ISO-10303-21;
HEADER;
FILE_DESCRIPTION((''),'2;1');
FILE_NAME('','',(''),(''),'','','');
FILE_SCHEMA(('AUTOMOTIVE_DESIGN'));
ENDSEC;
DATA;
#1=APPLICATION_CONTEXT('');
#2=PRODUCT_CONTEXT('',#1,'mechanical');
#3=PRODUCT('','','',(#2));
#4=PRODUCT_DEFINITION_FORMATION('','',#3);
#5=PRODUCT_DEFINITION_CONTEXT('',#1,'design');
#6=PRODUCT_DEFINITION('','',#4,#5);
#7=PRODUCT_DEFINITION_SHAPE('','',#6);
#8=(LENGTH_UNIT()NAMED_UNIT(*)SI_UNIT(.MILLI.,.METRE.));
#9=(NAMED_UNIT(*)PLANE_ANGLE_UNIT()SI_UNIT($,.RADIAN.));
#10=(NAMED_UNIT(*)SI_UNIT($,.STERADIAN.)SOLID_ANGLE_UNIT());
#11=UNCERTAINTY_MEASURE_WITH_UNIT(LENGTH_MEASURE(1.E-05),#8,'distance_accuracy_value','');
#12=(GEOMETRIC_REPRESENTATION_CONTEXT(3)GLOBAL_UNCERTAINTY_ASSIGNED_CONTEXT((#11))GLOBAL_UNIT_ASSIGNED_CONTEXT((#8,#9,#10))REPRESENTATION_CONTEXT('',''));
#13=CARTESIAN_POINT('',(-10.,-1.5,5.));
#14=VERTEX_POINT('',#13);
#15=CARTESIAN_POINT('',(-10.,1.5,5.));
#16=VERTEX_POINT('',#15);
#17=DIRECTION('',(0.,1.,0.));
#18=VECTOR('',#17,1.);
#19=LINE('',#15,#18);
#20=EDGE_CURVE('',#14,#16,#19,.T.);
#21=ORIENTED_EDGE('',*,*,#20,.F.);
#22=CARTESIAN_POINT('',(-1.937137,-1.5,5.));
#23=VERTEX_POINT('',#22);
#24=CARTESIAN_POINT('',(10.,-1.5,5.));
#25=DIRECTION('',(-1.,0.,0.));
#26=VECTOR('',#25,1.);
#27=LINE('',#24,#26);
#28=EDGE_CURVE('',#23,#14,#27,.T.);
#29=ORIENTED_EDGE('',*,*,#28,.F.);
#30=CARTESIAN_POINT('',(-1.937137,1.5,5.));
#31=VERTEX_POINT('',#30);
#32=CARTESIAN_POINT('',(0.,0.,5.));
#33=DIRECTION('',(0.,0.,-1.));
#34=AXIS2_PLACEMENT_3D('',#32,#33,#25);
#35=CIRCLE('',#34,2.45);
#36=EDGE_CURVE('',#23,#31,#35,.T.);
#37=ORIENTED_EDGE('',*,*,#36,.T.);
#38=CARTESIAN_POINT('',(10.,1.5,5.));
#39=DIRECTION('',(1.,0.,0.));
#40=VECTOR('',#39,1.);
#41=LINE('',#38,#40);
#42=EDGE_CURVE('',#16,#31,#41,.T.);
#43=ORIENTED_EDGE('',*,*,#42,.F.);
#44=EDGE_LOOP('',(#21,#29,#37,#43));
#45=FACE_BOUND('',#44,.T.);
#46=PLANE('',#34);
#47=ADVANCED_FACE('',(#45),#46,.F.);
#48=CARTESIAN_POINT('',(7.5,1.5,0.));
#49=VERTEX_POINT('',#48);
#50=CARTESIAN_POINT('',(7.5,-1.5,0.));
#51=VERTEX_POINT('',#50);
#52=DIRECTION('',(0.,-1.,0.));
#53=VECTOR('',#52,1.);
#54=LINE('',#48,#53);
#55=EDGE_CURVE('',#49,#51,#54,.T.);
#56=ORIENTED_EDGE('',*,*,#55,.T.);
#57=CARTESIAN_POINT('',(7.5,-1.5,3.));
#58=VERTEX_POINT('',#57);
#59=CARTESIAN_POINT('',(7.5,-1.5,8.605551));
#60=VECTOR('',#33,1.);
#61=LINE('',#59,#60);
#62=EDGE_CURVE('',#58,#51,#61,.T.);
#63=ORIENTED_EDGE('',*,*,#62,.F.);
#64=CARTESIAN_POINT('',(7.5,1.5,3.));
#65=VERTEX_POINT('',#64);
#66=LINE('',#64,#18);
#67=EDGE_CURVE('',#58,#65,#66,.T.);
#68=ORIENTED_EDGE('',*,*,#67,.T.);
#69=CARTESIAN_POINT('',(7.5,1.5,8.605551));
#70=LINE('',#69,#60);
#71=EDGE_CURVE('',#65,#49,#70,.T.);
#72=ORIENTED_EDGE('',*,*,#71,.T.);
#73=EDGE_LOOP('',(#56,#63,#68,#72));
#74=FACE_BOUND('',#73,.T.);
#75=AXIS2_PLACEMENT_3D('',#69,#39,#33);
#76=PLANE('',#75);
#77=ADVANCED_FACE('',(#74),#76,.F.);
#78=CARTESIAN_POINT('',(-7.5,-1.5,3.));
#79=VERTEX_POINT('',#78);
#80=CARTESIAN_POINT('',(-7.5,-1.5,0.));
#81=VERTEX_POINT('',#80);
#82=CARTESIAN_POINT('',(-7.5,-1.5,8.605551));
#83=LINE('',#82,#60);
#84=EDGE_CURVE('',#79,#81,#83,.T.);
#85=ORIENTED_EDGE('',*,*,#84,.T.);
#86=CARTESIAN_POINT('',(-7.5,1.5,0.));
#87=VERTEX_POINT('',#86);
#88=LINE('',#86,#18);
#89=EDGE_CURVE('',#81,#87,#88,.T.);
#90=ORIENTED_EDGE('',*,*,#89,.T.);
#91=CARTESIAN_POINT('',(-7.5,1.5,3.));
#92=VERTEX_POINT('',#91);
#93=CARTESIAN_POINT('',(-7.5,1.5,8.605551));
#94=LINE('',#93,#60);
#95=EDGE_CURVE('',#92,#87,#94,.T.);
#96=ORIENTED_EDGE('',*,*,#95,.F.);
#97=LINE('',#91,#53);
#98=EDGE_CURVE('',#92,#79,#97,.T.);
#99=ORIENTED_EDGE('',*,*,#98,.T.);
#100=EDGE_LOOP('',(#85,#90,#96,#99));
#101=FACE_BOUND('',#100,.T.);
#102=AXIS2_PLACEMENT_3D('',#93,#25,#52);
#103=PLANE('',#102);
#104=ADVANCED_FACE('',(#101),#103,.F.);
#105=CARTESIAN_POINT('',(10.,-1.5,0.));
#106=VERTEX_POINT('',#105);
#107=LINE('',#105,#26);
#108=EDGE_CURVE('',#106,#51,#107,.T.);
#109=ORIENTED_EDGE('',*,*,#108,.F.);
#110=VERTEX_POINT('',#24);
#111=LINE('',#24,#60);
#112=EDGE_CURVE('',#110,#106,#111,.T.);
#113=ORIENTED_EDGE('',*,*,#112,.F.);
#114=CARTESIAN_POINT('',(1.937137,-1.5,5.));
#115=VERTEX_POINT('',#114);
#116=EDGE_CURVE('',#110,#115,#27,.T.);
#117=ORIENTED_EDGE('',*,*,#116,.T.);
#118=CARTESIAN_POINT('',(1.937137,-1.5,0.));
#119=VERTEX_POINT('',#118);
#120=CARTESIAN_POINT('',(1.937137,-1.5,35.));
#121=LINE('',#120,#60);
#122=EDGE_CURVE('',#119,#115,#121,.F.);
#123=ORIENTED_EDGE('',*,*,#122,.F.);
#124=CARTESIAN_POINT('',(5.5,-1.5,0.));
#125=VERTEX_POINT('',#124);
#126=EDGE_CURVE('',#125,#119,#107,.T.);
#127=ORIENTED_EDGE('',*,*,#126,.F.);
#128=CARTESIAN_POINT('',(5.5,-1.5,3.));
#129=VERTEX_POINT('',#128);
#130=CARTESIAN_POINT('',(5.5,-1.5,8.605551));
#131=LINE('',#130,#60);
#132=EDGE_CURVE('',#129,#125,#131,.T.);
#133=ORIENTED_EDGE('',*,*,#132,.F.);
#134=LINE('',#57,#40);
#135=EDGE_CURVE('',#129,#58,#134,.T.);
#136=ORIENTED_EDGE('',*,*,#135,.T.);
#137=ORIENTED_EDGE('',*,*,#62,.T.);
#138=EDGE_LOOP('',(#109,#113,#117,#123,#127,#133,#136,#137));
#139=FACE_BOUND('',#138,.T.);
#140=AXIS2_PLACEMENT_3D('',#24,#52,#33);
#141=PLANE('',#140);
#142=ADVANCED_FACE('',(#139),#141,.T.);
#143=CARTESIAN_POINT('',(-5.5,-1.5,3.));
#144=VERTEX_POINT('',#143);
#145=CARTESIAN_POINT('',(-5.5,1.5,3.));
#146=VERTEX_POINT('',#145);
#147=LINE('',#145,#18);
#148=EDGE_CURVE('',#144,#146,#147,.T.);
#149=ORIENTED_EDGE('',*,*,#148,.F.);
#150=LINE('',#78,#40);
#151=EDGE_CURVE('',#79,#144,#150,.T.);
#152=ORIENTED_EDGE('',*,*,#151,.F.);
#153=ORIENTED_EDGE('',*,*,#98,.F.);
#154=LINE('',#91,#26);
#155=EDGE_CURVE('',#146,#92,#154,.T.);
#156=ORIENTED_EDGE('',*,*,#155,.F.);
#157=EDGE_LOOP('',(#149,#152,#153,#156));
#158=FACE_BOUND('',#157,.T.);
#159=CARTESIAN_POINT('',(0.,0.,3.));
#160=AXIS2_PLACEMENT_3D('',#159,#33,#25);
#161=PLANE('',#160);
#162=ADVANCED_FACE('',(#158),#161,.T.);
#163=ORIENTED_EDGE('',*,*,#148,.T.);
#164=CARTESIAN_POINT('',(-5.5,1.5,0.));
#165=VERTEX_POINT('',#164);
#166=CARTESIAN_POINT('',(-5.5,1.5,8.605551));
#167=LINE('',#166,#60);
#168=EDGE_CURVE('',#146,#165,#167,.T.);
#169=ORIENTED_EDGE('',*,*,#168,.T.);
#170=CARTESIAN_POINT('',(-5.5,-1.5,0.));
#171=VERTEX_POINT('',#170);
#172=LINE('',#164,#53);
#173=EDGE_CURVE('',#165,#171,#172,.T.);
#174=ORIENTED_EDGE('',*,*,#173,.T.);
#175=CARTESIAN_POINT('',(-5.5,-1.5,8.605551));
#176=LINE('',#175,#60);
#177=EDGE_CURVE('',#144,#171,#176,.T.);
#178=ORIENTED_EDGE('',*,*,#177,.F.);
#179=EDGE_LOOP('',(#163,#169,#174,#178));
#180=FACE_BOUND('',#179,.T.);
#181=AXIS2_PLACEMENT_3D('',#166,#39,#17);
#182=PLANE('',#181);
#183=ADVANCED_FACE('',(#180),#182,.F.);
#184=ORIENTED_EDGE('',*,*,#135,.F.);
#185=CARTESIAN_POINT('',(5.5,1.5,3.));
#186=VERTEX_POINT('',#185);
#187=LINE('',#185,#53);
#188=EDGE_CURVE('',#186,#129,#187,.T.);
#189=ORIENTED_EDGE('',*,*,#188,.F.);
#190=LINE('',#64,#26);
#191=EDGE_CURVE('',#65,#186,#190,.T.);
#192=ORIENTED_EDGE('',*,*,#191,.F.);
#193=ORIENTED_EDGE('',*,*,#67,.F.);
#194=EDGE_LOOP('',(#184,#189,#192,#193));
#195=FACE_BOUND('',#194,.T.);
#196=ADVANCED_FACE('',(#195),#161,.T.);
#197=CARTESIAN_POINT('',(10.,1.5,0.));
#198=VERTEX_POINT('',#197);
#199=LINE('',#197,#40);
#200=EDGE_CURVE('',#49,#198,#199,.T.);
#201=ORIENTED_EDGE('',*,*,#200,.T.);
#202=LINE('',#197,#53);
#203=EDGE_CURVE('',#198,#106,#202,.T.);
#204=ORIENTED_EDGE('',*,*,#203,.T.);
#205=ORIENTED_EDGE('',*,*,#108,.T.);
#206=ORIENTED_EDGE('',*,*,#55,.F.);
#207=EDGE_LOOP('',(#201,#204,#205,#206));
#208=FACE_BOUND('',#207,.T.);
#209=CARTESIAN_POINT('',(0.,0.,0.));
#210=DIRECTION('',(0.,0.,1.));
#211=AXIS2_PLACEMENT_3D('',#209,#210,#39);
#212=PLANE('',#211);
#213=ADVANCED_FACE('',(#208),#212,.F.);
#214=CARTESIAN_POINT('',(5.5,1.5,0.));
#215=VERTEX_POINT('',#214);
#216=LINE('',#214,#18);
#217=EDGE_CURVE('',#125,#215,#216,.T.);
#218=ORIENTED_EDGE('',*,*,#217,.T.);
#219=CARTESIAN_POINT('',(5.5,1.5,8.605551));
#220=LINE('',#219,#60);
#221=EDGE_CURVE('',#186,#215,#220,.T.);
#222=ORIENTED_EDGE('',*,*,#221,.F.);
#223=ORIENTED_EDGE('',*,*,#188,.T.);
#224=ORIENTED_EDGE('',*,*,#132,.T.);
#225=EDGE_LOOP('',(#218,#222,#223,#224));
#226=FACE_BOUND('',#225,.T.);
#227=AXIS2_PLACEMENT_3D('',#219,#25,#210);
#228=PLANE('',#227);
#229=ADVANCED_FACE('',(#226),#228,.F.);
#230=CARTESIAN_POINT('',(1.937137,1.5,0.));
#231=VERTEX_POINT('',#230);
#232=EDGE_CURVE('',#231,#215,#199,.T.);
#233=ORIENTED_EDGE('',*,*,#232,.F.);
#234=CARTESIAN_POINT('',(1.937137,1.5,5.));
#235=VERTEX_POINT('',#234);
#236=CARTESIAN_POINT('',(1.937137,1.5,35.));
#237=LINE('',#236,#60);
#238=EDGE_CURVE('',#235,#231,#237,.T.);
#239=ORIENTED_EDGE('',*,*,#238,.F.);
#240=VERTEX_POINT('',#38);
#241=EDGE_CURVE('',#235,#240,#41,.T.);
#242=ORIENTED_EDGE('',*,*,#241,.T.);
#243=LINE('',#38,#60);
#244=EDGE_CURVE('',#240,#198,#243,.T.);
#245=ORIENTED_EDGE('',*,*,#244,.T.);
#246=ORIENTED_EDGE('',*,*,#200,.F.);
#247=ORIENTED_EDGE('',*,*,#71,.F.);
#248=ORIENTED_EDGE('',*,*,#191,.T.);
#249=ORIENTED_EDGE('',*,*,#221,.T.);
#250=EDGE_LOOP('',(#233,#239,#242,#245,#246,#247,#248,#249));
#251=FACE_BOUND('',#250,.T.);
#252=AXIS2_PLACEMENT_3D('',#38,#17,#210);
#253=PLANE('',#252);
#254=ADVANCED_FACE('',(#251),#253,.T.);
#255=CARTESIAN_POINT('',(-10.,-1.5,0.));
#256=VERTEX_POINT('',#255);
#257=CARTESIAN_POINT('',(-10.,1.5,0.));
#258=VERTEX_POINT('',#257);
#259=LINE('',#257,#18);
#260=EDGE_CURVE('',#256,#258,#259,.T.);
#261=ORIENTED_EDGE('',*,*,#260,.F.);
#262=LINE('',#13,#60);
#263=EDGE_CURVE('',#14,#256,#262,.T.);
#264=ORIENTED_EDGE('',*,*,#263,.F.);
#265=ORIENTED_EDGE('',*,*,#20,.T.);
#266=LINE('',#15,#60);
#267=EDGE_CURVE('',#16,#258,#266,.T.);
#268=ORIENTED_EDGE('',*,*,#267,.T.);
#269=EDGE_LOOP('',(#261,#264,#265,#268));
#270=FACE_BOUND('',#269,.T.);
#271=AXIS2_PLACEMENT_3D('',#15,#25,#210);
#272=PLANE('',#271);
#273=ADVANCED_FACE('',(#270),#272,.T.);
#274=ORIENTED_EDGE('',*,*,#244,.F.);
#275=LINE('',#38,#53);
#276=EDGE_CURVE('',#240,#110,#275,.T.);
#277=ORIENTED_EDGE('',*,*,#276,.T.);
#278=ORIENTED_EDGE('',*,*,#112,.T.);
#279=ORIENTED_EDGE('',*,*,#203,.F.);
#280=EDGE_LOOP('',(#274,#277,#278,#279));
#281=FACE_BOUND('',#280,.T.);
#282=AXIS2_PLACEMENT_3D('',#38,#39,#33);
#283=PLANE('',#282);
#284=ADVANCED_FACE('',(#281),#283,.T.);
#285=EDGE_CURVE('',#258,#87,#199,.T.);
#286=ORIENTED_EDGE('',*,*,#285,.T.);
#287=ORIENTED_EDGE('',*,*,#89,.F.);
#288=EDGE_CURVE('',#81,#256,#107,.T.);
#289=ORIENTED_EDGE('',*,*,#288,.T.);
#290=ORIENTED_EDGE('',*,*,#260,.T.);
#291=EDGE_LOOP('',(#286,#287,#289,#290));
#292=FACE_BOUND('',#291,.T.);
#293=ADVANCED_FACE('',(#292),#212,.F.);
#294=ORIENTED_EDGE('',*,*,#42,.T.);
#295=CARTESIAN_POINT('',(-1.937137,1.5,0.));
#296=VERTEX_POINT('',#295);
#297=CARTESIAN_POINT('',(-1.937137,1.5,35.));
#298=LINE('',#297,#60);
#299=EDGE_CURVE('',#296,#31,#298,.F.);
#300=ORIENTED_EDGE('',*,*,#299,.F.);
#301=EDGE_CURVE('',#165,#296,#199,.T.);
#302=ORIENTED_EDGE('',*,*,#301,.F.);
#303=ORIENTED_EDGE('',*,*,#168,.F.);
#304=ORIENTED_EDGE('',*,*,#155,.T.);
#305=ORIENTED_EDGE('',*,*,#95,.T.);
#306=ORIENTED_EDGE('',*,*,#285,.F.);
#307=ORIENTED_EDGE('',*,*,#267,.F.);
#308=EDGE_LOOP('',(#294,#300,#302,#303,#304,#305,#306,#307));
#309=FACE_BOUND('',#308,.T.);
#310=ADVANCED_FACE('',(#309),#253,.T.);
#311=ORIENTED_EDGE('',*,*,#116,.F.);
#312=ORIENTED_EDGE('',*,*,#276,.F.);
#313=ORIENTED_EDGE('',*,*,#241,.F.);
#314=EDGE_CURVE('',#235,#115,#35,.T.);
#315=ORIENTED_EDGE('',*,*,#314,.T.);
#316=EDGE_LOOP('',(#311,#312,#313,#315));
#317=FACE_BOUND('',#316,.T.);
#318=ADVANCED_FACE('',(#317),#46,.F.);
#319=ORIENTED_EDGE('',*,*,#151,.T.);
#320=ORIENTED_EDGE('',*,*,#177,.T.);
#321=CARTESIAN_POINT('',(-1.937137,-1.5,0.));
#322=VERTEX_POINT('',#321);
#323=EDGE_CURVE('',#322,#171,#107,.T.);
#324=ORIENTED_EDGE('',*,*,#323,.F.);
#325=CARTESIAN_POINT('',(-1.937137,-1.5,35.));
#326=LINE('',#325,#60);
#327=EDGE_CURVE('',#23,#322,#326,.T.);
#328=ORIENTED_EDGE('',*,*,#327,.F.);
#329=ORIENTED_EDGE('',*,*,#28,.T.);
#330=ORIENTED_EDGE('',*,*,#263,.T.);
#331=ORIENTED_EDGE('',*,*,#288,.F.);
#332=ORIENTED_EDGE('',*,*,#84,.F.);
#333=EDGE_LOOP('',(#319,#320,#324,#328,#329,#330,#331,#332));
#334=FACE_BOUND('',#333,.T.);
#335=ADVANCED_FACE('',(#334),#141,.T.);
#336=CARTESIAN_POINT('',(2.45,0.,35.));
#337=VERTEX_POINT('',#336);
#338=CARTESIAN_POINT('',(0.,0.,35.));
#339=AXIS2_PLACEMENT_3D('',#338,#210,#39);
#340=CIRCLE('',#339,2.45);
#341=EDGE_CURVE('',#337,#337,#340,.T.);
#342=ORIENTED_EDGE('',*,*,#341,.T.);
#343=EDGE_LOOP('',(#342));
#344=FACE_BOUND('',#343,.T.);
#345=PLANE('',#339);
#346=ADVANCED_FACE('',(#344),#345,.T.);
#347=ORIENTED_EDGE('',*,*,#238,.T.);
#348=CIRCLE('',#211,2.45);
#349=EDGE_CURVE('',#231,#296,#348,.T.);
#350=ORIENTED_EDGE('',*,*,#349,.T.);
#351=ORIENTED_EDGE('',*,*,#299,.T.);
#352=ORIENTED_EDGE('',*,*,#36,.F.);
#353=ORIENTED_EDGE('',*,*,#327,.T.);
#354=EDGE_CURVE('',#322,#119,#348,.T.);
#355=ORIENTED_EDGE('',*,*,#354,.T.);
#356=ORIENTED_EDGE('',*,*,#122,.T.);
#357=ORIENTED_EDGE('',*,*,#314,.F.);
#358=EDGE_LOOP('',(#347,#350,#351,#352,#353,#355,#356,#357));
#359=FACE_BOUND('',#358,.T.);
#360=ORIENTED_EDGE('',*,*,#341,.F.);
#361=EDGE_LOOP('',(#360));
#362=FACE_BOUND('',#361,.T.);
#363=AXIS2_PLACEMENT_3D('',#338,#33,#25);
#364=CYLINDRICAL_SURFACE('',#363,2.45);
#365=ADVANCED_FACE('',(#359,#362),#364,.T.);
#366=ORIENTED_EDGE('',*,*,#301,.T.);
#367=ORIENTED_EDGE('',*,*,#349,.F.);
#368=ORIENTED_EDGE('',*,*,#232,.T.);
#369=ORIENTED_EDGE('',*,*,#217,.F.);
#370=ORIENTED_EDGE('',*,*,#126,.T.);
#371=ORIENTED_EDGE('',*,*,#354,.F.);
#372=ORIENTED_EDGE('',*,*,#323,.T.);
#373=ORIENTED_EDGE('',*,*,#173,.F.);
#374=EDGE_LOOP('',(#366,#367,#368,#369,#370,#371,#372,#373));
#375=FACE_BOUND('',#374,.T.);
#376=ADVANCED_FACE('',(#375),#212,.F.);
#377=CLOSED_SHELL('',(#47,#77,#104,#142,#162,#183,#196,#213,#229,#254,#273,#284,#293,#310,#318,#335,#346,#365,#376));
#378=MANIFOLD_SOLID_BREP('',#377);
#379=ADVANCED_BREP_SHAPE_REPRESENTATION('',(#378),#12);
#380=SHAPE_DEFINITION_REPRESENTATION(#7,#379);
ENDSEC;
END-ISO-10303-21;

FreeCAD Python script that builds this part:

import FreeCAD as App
import Part
import Sketcher
from FreeCAD import Vector

doc = App.newDocument("Part")
body = doc.addObject("PartDesign::Body", "Body")

# Sketch on XY plane
sketch1 = body.newObject("Sketcher::SketchObject", "Sketch")
sketch1.AttachmentSupport = (doc.getObject("XY_Plane"), [""])
sketch1.MapMode = "FlatFace"
sketch1.addGeometry(Part.Circle(Vector(0, 0, 0), Vector(0, 0, 1), 2.45), False)
sketch1.addConstraint(Sketcher.Constraint("Coincident", 0, 3, -1, 1))
sketch1.addConstraint(Sketcher.Constraint("Diameter", 0, 4.9))
pad1 = body.newObject("PartDesign::Pad", "Pad")
pad1.Profile = sketch1
pad1.Length = 35

# Sketch on XY plane
sketch2 = body.newObject("Sketcher::SketchObject", "Sketch001")
sketch2.AttachmentSupport = (doc.getObject("XY_Plane"), [""])
sketch2.MapMode = "FlatFace"
sketch2.addGeometry(Part.LineSegment(Vector(10, 1.5, 0), Vector(10, -1.5, 0)), False)
sketch2.addGeometry(Part.LineSegment(Vector(10, -1.5, 0), Vector(-10, -1.5, 0)), False)
sketch2.addGeometry(Part.LineSegment(Vector(-10, -1.5, 0), Vector(-10, 1.5, 0)), False)
sketch2.addGeometry(Part.LineSegment(Vector(-10, 1.5, 0), Vector(10, 1.5, 0)), False)
sketch2.addConstraint(Sketcher.Constraint("Coincident", 0, 2, 1, 1))
sketch2.addConstraint(Sketcher.Constraint("Coincident", 1, 2, 2, 1))
sketch2.addConstraint(Sketcher.Constraint("Coincident", 2, 2, 3, 1))
sketch2.addConstraint(Sketcher.Constraint("Coincident", 3, 2, 0, 1))
sketch2.addConstraint(Sketcher.Constraint("Vertical", 0))
sketch2.addConstraint(Sketcher.Constraint("Horizontal", 1))
sketch2.addConstraint(Sketcher.Constraint("Vertical", 2))
sketch2.addConstraint(Sketcher.Constraint("Horizontal", 3))
sketch2.addConstraint(Sketcher.Constraint("Symmetric", 0, 2, 2, 2, -1, 1))
sketch2.addConstraint(Sketcher.Constraint("DistanceX", 1, 2, 1, 1, 20.0))
sketch2.addConstraint(Sketcher.Constraint("DistanceY", 0, 2, 0, 1, 3.0))
pad2 = body.newObject("PartDesign::Pad", "Pad001")
pad2.Profile = sketch2
pad2.Length = 5

# Sketch on XY plane
sketch3 = body.newObject("Sketcher::SketchObject", "Sketch002")
sketch3.AttachmentSupport = (doc.getObject("XY_Plane"), [""])
sketch3.MapMode = "FlatFace"
sketch3.addGeometry(Part.LineSegment(Vector(7.5, 1.5, 0), Vector(7.5, -1.5, 0)), False)
sketch3.addGeometry(Part.LineSegment(Vector(7.5, -1.5, 0), Vector(5.5, -1.5, 0)), False)
sketch3.addGeometry(Part.LineSegment(Vector(5.5, -1.5, 0), Vector(5.5, 1.5, 0)), False)
sketch3.addGeometry(Part.LineSegment(Vector(5.5, 1.5, 0), Vector(7.5, 1.5, 0)), False)
sketch3.addGeometry(Part.LineSegment(Vector(-5.5, 1.5, 0), Vector(-5.5, -1.5, 0)), False)
sketch3.addGeometry(Part.LineSegment(Vector(-5.5, -1.5, 0), Vector(-7.5, -1.5, 0)), False)
sketch3.addGeometry(Part.LineSegment(Vector(-7.5, -1.5, 0), Vector(-7.5, 1.5, 0)), False)
sketch3.addGeometry(Part.LineSegment(Vector(-7.5, 1.5, 0), Vector(-5.5, 1.5, 0)), False)
sketch3.addConstraint(Sketcher.Constraint("Coincident", 0, 2, 1, 1))
sketch3.addConstraint(Sketcher.Constraint("Coincident", 1, 2, 2, 1))
sketch3.addConstraint(Sketcher.Constraint("Coincident", 2, 2, 3, 1))
sketch3.addConstraint(Sketcher.Constraint("Coincident", 3, 2, 0, 1))
sketch3.addConstraint(Sketcher.Constraint("Coincident", 4, 2, 5, 1))
sketch3.addConstraint(Sketcher.Constraint("Coincident", 5, 2, 6, 1))
sketch3.addConstraint(Sketcher.Constraint("Coincident", 6, 2, 7, 1))
sketch3.addConstraint(Sketcher.Constraint("Coincident", 7, 2, 4, 1))
sketch3.addConstraint(Sketcher.Constraint("Vertical", 0))
sketch3.addConstraint(Sketcher.Constraint("Horizontal", 1))
sketch3.addConstraint(Sketcher.Constraint("Vertical", 2))
sketch3.addConstraint(Sketcher.Constraint("Horizontal", 3))
sketch3.addConstraint(Sketcher.Constraint("Vertical", 4))
sketch3.addConstraint(Sketcher.Constraint("Horizontal", 5))
sketch3.addConstraint(Sketcher.Constraint("Vertical", 6))
sketch3.addConstraint(Sketcher.Constraint("Horizontal", 7))
sketch3.addConstraint(Sketcher.Constraint("Symmetric", 2, 2, 4, 2, -1, 1))
sketch3.addConstraint(Sketcher.Constraint("Symmetric", 0, 2, 6, 2, -1, 1))
sketch3.addConstraint(Sketcher.Constraint("Horizontal", 1, 2, 4, 2))
sketch3.addConstraint(Sketcher.Constraint("DistanceX", 1, 2, 1, 1, 2.0))
sketch3.addConstraint(Sketcher.Constraint("DistanceY", 0, 2, 0, 1, 3.0))
sketch3.addConstraint(Sketcher.Constraint("DistanceX", 4, 2, 1, 2, 11.0))
pocket1 = body.newObject("PartDesign::Pocket", "Pocket")
pocket1.Profile = sketch3
pocket1.Length = 3
pocket1.Reversed = True

doc.recompute()
